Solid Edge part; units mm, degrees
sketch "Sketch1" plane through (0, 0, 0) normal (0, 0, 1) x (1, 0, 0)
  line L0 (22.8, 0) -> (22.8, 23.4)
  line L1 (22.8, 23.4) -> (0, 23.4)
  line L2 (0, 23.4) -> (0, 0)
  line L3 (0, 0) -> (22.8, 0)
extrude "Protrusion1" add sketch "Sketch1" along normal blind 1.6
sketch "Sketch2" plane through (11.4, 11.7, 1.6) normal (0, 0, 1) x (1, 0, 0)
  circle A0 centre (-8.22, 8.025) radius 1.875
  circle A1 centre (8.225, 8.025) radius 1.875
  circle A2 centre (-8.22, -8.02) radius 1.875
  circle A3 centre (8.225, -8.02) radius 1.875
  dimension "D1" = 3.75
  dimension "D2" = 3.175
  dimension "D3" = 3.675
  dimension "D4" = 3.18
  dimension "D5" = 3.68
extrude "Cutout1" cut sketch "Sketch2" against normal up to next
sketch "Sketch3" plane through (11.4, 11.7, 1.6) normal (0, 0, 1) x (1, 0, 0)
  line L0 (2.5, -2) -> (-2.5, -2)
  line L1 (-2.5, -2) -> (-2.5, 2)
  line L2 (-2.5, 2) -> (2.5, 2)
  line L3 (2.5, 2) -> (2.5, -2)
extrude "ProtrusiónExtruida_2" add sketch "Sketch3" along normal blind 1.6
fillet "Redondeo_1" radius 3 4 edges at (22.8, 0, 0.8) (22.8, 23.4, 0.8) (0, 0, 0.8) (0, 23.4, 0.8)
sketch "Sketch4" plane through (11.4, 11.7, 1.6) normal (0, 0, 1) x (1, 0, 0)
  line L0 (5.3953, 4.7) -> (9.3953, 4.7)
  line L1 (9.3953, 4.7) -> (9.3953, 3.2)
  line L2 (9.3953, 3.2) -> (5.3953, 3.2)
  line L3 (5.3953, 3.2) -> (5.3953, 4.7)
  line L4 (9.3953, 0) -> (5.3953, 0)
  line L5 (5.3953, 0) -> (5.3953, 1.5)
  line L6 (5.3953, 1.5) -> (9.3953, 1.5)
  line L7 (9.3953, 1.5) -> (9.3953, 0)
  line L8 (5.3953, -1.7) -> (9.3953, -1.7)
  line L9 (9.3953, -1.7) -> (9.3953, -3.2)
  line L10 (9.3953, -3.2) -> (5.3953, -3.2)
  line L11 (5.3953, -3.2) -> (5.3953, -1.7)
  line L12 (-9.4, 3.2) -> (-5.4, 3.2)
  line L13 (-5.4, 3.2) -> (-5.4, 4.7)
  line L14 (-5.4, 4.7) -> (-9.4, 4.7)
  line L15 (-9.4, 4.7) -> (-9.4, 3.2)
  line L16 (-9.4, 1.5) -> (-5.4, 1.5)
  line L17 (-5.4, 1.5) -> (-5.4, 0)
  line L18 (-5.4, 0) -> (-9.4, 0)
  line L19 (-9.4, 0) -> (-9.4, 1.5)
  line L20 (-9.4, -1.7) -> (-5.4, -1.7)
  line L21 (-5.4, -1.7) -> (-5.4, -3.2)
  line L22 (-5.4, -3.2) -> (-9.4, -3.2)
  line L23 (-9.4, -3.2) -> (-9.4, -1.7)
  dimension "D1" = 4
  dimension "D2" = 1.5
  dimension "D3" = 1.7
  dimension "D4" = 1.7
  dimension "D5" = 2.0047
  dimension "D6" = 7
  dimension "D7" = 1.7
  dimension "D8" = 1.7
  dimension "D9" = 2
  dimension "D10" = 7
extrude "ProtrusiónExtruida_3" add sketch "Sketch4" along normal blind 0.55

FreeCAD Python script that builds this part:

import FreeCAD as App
import Part
import Sketcher
Q = App.Units.Quantity


def edges_at(feature, points):
    """Names of the edges that pass closest to the given points."""
    edges = feature.Shape.Edges
    near = lambda p: min(range(len(edges)), key=lambda i: edges[i].distToShape(Part.Vertex(*p))[0])
    return sorted({f"Edge{near(p) + 1}" for p in points})


def add_polygon(sketch, points):
    """Adds a closed chain of lines whose ends are joined by coincident constraints."""
    first, n = sketch.GeometryCount, len(points)
    for a, b in zip(points, points[1:] + points[:1]):
        sketch.addGeometry(Part.LineSegment(App.Vector(*a, 0), App.Vector(*b, 0)), False)
    for i in range(n):
        sketch.addConstraint(Sketcher.Constraint("Coincident", first + i, 2, first + (i + 1) % n, 1))

doc = App.newDocument("Part")
body = doc.addObject("PartDesign::Body", "Body")

# Sketch on XY plane
sketch1 = body.newObject("Sketcher::SketchObject", "Sketch")
sketch1.AttachmentSupport = (doc.getObject("XY_Plane"), [""])
sketch1.MapMode = "FlatFace"
add_polygon(sketch1, [(0, 0), (22.8, 0), (22.8, 23.4), (0, 23.4)])  # lines 0-3
sketch1.addConstraint([
    Sketcher.Constraint("Horizontal", 0),
    Sketcher.Constraint("Vertical", 1),
    Sketcher.Constraint("Horizontal", 2),
    Sketcher.Constraint("Vertical", 3),
    Sketcher.Constraint("Coincident", 3, 2, -1, 1),
    Sketcher.Constraint("DistanceX", 0, 1, 0, 2, Q("22.8 mm")),
    Sketcher.Constraint("DistanceY", 1, 1, 1, 2, Q("23.4 mm")),
])
pad1 = body.newObject("PartDesign::Pad", "Pad")
pad1.Profile = sketch1
pad1.Length = 1.6

# Sketch on XY plane
sketch2 = body.newObject("Sketcher::SketchObject", "Sketch001")
sketch2.AttachmentSupport = (doc.getObject("XY_Plane"), [""])
sketch2.MapMode = "FlatFace"
sketch2.AttachmentOffset = App.Placement(App.Vector(0, 0, 1.6), App.Rotation())
sketch2.addGeometry([
    Part.Circle(App.Vector(3.18, 19.725, 0), App.Vector(0, 0, 1), 1.875),
    Part.Circle(App.Vector(19.625, 19.725, 0), App.Vector(0, 0, 1), 1.875),
    Part.Circle(App.Vector(3.18, 3.68, 0), App.Vector(0, 0, 1), 1.875),
    Part.Circle(App.Vector(19.625, 3.68, 0), App.Vector(0, 0, 1), 1.875),
], False)
sketch2.addConstraint([
    Sketcher.Constraint("Equal", 0, 1),
    Sketcher.Constraint("Equal", 1, 2),
    Sketcher.Constraint("Equal", 2, 3),
    Sketcher.Constraint("Horizontal", 0, 3, 1, 3),
    Sketcher.Constraint("Horizontal", 2, 3, 3, 3),
    Sketcher.Constraint("Vertical", 0, 3, 2, 3),
    Sketcher.Constraint("Vertical", 1, 3, 3, 3),
    Sketcher.Constraint("Diameter", 0, Q("3.75 mm")),
    Sketcher.Constraint("DistanceX", -1, 1, 0, 3, Q("3.18 mm")),
    Sketcher.Constraint("DistanceY", -1, 1, 2, 3, Q("3.68 mm")),
    Sketcher.Constraint("DistanceY", -1, 1, 0, 3, Q("19.725 mm")),
    Sketcher.Constraint("DistanceX", -1, 1, 1, 3, Q("19.625 mm")),
])
pocket1 = body.newObject("PartDesign::Pocket", "Pocket")
pocket1.Profile = sketch2
pocket1.Type = "UpToFirst"

# Sketch on XY plane
sketch3 = body.newObject("Sketcher::SketchObject", "Sketch002")
sketch3.AttachmentSupport = (doc.getObject("XY_Plane"), [""])
sketch3.MapMode = "FlatFace"
sketch3.AttachmentOffset = App.Placement(App.Vector(0, 0, 1.6), App.Rotation())
add_polygon(sketch3, [(8.9, 9.7), (13.9, 9.7), (13.9, 13.7), (8.9, 13.7)])  # lines 0-3
sketch3.addConstraint([
    Sketcher.Constraint("Horizontal", 0),
    Sketcher.Constraint("Vertical", 1),
    Sketcher.Constraint("Horizontal", 2),
    Sketcher.Constraint("Vertical", 3),
    Sketcher.Constraint("DistanceX", 0, 1, 0, 2, Q("5 mm")),
    Sketcher.Constraint("DistanceY", 1, 1, 1, 2, Q("4 mm")),
    Sketcher.Constraint("DistanceX", -1, 1, 0, 2, Q("13.9 mm")),
    Sketcher.Constraint("DistanceY", -1, 1, 0, 2, Q("9.7 mm")),
])
pad2 = body.newObject("PartDesign::Pad", "Pad001")
pad2.Profile = sketch3
pad2.Length = 1.6
doc.recompute()

fillet = body.newObject("PartDesign::Fillet", "Fillet")
fillet.Base = (pad2, edges_at(pad2, [
    (22.8, 0, 0.8),
    (22.8, 23.4, 0.8),
    (0, 0, 0.8),
    (0, 23.4, 0.8),
]))
fillet.Radius = 3

# Sketch on XY plane
sketch4 = body.newObject("Sketcher::SketchObject", "Sketch003")
sketch4.AttachmentSupport = (doc.getObject("XY_Plane"), [""])
sketch4.MapMode = "FlatFace"
sketch4.AttachmentOffset = App.Placement(App.Vector(0, 0, 1.6), App.Rotation())
add_polygon(sketch4, [(20.7953, 16.4), (16.7953, 16.4), (16.7953, 14.9), (20.7953, 14.9)])  # lines 0-3
add_polygon(sketch4, [(16.7953, 11.7), (20.7953, 11.7), (20.7953, 13.2), (16.7953, 13.2)])  # lines 4-7
add_polygon(sketch4, [(20.7953, 10), (16.7953, 10), (16.7953, 8.5), (20.7953, 8.5)])  # lines 8-11
add_polygon(sketch4, [(2, 16.4), (2, 14.9), (6, 14.9), (6, 16.4)])  # lines 12-15
add_polygon(sketch4, [(6, 13.2), (2, 13.2), (2, 11.7), (6, 11.7)])  # lines 16-19
add_polygon(sketch4, [(6, 10), (2, 10), (2, 8.5), (6, 8.5)])  # lines 20-23
sketch4.addConstraint([
    Sketcher.Constraint("Horizontal", 0),
    Sketcher.Constraint("Vertical", 1),
    Sketcher.Constraint("Horizontal", 2),
    Sketcher.Constraint("Vertical", 3),
    Sketcher.Constraint("Horizontal", 4),
    Sketcher.Constraint("Vertical", 5),
    Sketcher.Constraint("Horizontal", 6),
    Sketcher.Constraint("Vertical", 7),
    Sketcher.Constraint("Horizontal", 8),
    Sketcher.Constraint("Vertical", 9),
    Sketcher.Constraint("Horizontal", 10),
    Sketcher.Constraint("Vertical", 11),
    Sketcher.Constraint("Vertical", 12),
    Sketcher.Constraint("Horizontal", 13),
    Sketcher.Constraint("Vertical", 14),
    Sketcher.Constraint("Horizontal", 15),
    Sketcher.Constraint("Horizontal", 16),
    Sketcher.Constraint("Vertical", 17),
    Sketcher.Constraint("Horizontal", 18),
    Sketcher.Constraint("Vertical", 19),
    Sketcher.Constraint("Horizontal", 20),
    Sketcher.Constraint("Vertical", 21),
    Sketcher.Constraint("Horizontal", 22),
    Sketcher.Constraint("Vertical", 23),
    Sketcher.Constraint("Horizontal", 2, 2, 12, 2),
    Sketcher.Constraint("Horizontal", 3, 2, 14, 2),
    Sketcher.Constraint("Horizontal", 6, 2, 16, 2),
    Sketcher.Constraint("Horizontal", 7, 2, 17, 2),
    Sketcher.Constraint("Horizontal", 11, 2, 20, 2),
    Sketcher.Constraint("Horizontal", 10, 2, 21, 2),
    Sketcher.Constraint("Vertical", 3, 2, 4, 2),
    Sketcher.Constraint("Vertical", 1, 2, 6, 2),
    Sketcher.Constraint("Vertical", 7, 2, 8, 2),
    Sketcher.Constraint("Vertical", 5, 2, 10, 2),
    Sketcher.Constraint("Vertical", 15, 2, 16, 2),
    Sketcher.Constraint("Vertical", 14, 2, 18, 2),
    Sketcher.Constraint("Vertical", 17, 2, 20, 2),
    Sketcher.Constraint("Vertical", 19, 2, 22, 2),
    Sketcher.Constraint("Equal", 10, 13),
    Sketcher.Constraint("Equal", 3, 5),
    Sketcher.Constraint("Equal", 7, 9),
    Sketcher.Constraint("DistanceX", 0, 2, 0, 1, Q("4 mm")),
    Sketcher.Constraint("DistanceY", 1, 2, 1, 1, Q("1.5 mm")),
    Sketcher.Constraint("DistanceY", -1, 1, 8, 2, Q("10 mm")),
    Sketcher.Constraint("DistanceX", -1, 1, 12, 2, Q("2 mm")),
    Sketcher.Constraint("DistanceY", -1, 1, 0, 2, Q("16.4 mm")),
    Sketcher.Constraint("DistanceY", -1, 1, 4, 2, Q("11.7 mm")),
    Sketcher.Constraint("DistanceX", -1, 1, 0, 2, Q("16.7953 mm")),
])
pad3 = body.newObject("PartDesign::Pad", "Pad002")
pad3.Profile = sketch4
pad3.Length = 0.55

doc.recompute()
